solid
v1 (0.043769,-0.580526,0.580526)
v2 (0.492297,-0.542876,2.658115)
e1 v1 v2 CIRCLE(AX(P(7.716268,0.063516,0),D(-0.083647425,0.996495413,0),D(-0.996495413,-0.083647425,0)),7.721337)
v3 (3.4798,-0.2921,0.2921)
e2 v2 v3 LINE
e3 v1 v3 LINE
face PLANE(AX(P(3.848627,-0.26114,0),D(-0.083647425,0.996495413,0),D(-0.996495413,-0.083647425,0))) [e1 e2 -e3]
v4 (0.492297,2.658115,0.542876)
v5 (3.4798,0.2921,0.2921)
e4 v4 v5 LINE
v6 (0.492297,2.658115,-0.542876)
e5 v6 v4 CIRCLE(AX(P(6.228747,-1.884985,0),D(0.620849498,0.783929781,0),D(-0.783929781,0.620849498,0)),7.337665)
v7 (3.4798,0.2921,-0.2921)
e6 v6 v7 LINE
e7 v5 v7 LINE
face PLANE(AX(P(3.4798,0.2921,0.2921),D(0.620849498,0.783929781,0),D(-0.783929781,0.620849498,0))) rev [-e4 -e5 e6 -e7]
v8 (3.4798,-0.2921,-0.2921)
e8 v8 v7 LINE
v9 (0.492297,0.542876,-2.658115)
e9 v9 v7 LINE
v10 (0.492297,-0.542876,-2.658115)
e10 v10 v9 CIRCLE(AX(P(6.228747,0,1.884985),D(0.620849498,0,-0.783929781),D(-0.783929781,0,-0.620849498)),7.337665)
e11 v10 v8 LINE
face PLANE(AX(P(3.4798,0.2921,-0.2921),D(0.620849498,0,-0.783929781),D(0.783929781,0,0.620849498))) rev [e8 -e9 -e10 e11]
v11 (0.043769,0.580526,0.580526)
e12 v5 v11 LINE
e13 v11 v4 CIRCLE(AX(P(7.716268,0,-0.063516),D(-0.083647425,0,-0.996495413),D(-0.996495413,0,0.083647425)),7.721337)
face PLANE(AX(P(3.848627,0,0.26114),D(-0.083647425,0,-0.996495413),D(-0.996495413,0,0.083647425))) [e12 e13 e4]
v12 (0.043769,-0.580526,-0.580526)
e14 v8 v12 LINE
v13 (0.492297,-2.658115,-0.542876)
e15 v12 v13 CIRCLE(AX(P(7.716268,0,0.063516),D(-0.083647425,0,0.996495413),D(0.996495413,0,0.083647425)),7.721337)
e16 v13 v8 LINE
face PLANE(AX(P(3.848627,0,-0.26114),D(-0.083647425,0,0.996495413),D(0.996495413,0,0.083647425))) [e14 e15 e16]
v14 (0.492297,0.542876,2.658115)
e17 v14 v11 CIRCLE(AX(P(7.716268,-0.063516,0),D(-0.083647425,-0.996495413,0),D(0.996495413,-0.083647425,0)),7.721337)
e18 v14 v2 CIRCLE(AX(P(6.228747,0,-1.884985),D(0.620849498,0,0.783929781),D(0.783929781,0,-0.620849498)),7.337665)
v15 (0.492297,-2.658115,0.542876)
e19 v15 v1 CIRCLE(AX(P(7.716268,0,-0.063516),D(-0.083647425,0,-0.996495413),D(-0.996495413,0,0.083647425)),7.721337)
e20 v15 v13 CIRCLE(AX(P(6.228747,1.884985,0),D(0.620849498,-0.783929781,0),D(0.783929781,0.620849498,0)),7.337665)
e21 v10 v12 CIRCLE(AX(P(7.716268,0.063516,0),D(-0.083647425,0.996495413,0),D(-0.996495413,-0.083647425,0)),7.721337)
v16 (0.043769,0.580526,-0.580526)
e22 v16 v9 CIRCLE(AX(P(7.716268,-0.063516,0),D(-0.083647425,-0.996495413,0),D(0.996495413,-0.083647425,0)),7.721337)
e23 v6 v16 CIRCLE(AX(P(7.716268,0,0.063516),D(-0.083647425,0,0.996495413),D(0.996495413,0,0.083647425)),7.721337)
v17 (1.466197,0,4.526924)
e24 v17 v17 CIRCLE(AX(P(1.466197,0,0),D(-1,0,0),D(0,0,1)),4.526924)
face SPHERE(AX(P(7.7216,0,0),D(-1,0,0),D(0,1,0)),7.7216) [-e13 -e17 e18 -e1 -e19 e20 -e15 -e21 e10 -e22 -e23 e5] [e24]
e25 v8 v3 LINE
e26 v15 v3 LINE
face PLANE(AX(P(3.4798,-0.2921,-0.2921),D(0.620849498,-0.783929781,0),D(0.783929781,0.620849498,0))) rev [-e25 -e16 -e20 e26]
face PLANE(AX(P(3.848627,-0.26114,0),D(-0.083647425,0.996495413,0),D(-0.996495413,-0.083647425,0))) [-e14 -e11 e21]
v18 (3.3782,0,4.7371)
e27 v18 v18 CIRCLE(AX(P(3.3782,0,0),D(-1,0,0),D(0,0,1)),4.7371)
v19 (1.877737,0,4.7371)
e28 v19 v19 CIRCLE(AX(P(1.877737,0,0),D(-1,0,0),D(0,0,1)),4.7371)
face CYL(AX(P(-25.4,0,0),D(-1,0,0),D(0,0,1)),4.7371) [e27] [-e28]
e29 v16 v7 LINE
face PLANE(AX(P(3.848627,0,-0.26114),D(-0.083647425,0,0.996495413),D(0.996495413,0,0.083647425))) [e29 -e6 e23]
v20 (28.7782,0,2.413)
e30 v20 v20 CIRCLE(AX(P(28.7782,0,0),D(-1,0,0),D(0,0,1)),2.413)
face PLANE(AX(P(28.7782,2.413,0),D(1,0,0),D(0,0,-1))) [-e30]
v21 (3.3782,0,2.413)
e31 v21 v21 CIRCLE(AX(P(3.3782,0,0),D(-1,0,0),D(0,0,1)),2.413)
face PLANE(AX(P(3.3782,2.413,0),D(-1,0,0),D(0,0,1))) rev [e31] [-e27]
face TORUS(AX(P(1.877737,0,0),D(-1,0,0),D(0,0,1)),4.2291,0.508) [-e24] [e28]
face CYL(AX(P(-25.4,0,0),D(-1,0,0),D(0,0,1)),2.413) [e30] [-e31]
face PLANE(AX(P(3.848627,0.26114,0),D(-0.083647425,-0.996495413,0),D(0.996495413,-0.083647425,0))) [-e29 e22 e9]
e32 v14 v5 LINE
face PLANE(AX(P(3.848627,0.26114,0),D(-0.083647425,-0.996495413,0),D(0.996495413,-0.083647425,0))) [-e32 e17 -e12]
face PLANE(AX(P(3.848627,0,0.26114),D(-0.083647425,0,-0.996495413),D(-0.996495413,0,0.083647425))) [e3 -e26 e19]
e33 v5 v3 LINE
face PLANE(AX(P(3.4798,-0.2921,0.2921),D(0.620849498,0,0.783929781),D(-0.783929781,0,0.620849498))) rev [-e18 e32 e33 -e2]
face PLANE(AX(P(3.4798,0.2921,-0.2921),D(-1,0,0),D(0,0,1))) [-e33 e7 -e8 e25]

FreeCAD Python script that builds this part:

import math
import FreeCAD as App
import Part
import Sketcher
Q = App.Units.Quantity


def add_polygon(sketch, points):
    """Adds a closed chain of lines whose ends are joined by coincident constraints."""
    first, n = sketch.GeometryCount, len(points)
    for a, b in zip(points, points[1:] + points[:1]):
        sketch.addGeometry(Part.LineSegment(App.Vector(*a, 0), App.Vector(*b, 0)), False)
    for i in range(n):
        sketch.addConstraint(Sketcher.Constraint("Coincident", first + i, 2, first + (i + 1) % n, 1))

doc = App.newDocument("Part")
body = doc.addObject("PartDesign::Body", "Body")

# Sketch on XY plane
sketch1 = doc.addObject("Sketcher::SketchObject", "Sketch")
body.addObject(sketch1)
sketch1.AttachmentSupport = (doc.XY_Plane, [""])
sketch1.MapMode = "FlatFace"
sketch1.addGeometry([
    Part.LineSegment(App.Vector(3.38, 2.41, 0), App.Vector(3.38, 4.74, 0)),  # 0
    Part.LineSegment(App.Vector(3.38, 4.74, 0), App.Vector(1.88, 4.74, 0)),  # 1
    Part.ArcOfCircle(Part.Circle(App.Vector(1.88, 4.23, 0), App.Vector(0, 0, 1), 0.51), math.radians(90), math.radians(144)),  # 2
    Part.ArcOfCircle(Part.Circle(App.Vector(7.72, 0, 0), App.Vector(0, 0, 1), 7.72), math.radians(144), math.radians(180)),  # 3
    Part.LineSegment(App.Vector(0, 0, 0), App.Vector(28.78, 0, 0)),  # 4
    Part.LineSegment(App.Vector(28.78, 0, 0), App.Vector(28.78, 2.41, 0)),  # 5
    Part.LineSegment(App.Vector(28.78, 2.41, 0), App.Vector(3.38, 2.41, 0)),  # 6
], False)
sketch1.addConstraint([
    Sketcher.Constraint("Coincident", 0, 2, 1, 1),
    Sketcher.Constraint("Tangent", 1, 2, 2, 1),
    Sketcher.Constraint("Tangent", 2, 2, 3, 1),
    Sketcher.Constraint("Coincident", 3, 2, 4, 1),
    Sketcher.Constraint("Coincident", 4, 2, 5, 1),
    Sketcher.Constraint("Coincident", 5, 2, 6, 1),
    Sketcher.Constraint("Coincident", 6, 2, 0, 1),
    Sketcher.Constraint("Vertical", 0),
    Sketcher.Constraint("Horizontal", 1),
    Sketcher.Constraint("Horizontal", 4),
    Sketcher.Constraint("Vertical", 5),
    Sketcher.Constraint("Horizontal", 6),
    Sketcher.Constraint("Coincident", 3, 2, -1, 1),
    Sketcher.Constraint("PointOnObject", 3, 3, -1),
    Sketcher.Constraint("DistanceX", 6, 2, 6, 1, Q("1 in")),
    Sketcher.Constraint("Radius", 2, Q("0.02 in")),
    Sketcher.Constraint("Radius", 3, Q("0.304 in")),
    Sketcher.Constraint("DistanceX", 4, 1, 4, 2, Q("1.133 in")),
    Sketcher.Constraint("DistanceY", 5, 1, 5, 2, Q("0.095 in")),
    Sketcher.Constraint("DistanceY", 0, 1, 0, 2, Q("0.0915 in")),
])
revolution = doc.addObject("PartDesign::Revolution", "Revolution")
body.addObject(revolution)
revolution.Profile = sketch1
revolution.ReferenceAxis = (sketch1, ["H_Axis"])
revolution.Angle = 360

# Sketch on YZ plane
sketch2 = doc.addObject("Sketcher::SketchObject", "Sketch001")
body.addObject(sketch2)
sketch2.AttachmentSupport = (doc.YZ_Plane, [""])
sketch2.MapMode = "FlatFace"
add_polygon(sketch2, [(3, 0.6), (-3, 0.6), (-3, -0.6), (3, -0.6)])  # lines 0-3
sketch2.addConstraint([
    Sketcher.Constraint("Horizontal", 0),
    Sketcher.Constraint("Vertical", 1),
    Sketcher.Constraint("Horizontal", 2),
    Sketcher.Constraint("Vertical", 3),
    Sketcher.Constraint("Symmetric", 0, 2, 2, 2, -1, 1),
    Sketcher.Constraint("DistanceX", 0, 2, 0, 1, Q("0.24 in")),
    Sketcher.Constraint("DistanceY", 1, 2, 1, 1, Q("0.046 in")),
])

# Sketch on YZ plane
sketch3 = doc.addObject("Sketcher::SketchObject", "Sketch002")
body.addObject(sketch3)
sketch3.AttachmentSupport = (doc.YZ_Plane, [""])
sketch3.MapMode = "FlatFace"
sketch3.AttachmentOffset = App.Placement(App.Vector(0, 0, 0.137 * 25.4), App.Rotation())
add_polygon(sketch3, [(0.3, 0.3), (-0.3, 0.3), (-0.3, -0.3), (0.3, -0.3)])  # lines 0-3
sketch3.addConstraint([
    Sketcher.Constraint("Horizontal", 0),
    Sketcher.Constraint("Vertical", 1),
    Sketcher.Constraint("Horizontal", 2),
    Sketcher.Constraint("Vertical", 3),
    Sketcher.Constraint("Symmetric", 0, 2, 2, 2, -1, 1),
    Sketcher.Constraint("Equal", 2, 1),
    Sketcher.Constraint("DistanceX", 0, 2, 0, 1, Q("0.023 in")),
])

subtractiveloft = doc.addObject("PartDesign::SubtractiveLoft", "SubtractiveLoft")
body.addObject(subtractiveloft)
subtractiveloft.Profile = sketch2
subtractiveloft.Sections = [sketch3]
doc.recompute()

polarpattern = doc.addObject("PartDesign::PolarPattern", "PolarPattern")
body.addObject(polarpattern)
polarpattern.Originals = [subtractiveloft]
polarpattern.Axis = (doc.X_Axis, [""])
polarpattern.Angle = 90
polarpattern.Occurrences = 2
body.Tip = polarpattern

doc.recompute()
